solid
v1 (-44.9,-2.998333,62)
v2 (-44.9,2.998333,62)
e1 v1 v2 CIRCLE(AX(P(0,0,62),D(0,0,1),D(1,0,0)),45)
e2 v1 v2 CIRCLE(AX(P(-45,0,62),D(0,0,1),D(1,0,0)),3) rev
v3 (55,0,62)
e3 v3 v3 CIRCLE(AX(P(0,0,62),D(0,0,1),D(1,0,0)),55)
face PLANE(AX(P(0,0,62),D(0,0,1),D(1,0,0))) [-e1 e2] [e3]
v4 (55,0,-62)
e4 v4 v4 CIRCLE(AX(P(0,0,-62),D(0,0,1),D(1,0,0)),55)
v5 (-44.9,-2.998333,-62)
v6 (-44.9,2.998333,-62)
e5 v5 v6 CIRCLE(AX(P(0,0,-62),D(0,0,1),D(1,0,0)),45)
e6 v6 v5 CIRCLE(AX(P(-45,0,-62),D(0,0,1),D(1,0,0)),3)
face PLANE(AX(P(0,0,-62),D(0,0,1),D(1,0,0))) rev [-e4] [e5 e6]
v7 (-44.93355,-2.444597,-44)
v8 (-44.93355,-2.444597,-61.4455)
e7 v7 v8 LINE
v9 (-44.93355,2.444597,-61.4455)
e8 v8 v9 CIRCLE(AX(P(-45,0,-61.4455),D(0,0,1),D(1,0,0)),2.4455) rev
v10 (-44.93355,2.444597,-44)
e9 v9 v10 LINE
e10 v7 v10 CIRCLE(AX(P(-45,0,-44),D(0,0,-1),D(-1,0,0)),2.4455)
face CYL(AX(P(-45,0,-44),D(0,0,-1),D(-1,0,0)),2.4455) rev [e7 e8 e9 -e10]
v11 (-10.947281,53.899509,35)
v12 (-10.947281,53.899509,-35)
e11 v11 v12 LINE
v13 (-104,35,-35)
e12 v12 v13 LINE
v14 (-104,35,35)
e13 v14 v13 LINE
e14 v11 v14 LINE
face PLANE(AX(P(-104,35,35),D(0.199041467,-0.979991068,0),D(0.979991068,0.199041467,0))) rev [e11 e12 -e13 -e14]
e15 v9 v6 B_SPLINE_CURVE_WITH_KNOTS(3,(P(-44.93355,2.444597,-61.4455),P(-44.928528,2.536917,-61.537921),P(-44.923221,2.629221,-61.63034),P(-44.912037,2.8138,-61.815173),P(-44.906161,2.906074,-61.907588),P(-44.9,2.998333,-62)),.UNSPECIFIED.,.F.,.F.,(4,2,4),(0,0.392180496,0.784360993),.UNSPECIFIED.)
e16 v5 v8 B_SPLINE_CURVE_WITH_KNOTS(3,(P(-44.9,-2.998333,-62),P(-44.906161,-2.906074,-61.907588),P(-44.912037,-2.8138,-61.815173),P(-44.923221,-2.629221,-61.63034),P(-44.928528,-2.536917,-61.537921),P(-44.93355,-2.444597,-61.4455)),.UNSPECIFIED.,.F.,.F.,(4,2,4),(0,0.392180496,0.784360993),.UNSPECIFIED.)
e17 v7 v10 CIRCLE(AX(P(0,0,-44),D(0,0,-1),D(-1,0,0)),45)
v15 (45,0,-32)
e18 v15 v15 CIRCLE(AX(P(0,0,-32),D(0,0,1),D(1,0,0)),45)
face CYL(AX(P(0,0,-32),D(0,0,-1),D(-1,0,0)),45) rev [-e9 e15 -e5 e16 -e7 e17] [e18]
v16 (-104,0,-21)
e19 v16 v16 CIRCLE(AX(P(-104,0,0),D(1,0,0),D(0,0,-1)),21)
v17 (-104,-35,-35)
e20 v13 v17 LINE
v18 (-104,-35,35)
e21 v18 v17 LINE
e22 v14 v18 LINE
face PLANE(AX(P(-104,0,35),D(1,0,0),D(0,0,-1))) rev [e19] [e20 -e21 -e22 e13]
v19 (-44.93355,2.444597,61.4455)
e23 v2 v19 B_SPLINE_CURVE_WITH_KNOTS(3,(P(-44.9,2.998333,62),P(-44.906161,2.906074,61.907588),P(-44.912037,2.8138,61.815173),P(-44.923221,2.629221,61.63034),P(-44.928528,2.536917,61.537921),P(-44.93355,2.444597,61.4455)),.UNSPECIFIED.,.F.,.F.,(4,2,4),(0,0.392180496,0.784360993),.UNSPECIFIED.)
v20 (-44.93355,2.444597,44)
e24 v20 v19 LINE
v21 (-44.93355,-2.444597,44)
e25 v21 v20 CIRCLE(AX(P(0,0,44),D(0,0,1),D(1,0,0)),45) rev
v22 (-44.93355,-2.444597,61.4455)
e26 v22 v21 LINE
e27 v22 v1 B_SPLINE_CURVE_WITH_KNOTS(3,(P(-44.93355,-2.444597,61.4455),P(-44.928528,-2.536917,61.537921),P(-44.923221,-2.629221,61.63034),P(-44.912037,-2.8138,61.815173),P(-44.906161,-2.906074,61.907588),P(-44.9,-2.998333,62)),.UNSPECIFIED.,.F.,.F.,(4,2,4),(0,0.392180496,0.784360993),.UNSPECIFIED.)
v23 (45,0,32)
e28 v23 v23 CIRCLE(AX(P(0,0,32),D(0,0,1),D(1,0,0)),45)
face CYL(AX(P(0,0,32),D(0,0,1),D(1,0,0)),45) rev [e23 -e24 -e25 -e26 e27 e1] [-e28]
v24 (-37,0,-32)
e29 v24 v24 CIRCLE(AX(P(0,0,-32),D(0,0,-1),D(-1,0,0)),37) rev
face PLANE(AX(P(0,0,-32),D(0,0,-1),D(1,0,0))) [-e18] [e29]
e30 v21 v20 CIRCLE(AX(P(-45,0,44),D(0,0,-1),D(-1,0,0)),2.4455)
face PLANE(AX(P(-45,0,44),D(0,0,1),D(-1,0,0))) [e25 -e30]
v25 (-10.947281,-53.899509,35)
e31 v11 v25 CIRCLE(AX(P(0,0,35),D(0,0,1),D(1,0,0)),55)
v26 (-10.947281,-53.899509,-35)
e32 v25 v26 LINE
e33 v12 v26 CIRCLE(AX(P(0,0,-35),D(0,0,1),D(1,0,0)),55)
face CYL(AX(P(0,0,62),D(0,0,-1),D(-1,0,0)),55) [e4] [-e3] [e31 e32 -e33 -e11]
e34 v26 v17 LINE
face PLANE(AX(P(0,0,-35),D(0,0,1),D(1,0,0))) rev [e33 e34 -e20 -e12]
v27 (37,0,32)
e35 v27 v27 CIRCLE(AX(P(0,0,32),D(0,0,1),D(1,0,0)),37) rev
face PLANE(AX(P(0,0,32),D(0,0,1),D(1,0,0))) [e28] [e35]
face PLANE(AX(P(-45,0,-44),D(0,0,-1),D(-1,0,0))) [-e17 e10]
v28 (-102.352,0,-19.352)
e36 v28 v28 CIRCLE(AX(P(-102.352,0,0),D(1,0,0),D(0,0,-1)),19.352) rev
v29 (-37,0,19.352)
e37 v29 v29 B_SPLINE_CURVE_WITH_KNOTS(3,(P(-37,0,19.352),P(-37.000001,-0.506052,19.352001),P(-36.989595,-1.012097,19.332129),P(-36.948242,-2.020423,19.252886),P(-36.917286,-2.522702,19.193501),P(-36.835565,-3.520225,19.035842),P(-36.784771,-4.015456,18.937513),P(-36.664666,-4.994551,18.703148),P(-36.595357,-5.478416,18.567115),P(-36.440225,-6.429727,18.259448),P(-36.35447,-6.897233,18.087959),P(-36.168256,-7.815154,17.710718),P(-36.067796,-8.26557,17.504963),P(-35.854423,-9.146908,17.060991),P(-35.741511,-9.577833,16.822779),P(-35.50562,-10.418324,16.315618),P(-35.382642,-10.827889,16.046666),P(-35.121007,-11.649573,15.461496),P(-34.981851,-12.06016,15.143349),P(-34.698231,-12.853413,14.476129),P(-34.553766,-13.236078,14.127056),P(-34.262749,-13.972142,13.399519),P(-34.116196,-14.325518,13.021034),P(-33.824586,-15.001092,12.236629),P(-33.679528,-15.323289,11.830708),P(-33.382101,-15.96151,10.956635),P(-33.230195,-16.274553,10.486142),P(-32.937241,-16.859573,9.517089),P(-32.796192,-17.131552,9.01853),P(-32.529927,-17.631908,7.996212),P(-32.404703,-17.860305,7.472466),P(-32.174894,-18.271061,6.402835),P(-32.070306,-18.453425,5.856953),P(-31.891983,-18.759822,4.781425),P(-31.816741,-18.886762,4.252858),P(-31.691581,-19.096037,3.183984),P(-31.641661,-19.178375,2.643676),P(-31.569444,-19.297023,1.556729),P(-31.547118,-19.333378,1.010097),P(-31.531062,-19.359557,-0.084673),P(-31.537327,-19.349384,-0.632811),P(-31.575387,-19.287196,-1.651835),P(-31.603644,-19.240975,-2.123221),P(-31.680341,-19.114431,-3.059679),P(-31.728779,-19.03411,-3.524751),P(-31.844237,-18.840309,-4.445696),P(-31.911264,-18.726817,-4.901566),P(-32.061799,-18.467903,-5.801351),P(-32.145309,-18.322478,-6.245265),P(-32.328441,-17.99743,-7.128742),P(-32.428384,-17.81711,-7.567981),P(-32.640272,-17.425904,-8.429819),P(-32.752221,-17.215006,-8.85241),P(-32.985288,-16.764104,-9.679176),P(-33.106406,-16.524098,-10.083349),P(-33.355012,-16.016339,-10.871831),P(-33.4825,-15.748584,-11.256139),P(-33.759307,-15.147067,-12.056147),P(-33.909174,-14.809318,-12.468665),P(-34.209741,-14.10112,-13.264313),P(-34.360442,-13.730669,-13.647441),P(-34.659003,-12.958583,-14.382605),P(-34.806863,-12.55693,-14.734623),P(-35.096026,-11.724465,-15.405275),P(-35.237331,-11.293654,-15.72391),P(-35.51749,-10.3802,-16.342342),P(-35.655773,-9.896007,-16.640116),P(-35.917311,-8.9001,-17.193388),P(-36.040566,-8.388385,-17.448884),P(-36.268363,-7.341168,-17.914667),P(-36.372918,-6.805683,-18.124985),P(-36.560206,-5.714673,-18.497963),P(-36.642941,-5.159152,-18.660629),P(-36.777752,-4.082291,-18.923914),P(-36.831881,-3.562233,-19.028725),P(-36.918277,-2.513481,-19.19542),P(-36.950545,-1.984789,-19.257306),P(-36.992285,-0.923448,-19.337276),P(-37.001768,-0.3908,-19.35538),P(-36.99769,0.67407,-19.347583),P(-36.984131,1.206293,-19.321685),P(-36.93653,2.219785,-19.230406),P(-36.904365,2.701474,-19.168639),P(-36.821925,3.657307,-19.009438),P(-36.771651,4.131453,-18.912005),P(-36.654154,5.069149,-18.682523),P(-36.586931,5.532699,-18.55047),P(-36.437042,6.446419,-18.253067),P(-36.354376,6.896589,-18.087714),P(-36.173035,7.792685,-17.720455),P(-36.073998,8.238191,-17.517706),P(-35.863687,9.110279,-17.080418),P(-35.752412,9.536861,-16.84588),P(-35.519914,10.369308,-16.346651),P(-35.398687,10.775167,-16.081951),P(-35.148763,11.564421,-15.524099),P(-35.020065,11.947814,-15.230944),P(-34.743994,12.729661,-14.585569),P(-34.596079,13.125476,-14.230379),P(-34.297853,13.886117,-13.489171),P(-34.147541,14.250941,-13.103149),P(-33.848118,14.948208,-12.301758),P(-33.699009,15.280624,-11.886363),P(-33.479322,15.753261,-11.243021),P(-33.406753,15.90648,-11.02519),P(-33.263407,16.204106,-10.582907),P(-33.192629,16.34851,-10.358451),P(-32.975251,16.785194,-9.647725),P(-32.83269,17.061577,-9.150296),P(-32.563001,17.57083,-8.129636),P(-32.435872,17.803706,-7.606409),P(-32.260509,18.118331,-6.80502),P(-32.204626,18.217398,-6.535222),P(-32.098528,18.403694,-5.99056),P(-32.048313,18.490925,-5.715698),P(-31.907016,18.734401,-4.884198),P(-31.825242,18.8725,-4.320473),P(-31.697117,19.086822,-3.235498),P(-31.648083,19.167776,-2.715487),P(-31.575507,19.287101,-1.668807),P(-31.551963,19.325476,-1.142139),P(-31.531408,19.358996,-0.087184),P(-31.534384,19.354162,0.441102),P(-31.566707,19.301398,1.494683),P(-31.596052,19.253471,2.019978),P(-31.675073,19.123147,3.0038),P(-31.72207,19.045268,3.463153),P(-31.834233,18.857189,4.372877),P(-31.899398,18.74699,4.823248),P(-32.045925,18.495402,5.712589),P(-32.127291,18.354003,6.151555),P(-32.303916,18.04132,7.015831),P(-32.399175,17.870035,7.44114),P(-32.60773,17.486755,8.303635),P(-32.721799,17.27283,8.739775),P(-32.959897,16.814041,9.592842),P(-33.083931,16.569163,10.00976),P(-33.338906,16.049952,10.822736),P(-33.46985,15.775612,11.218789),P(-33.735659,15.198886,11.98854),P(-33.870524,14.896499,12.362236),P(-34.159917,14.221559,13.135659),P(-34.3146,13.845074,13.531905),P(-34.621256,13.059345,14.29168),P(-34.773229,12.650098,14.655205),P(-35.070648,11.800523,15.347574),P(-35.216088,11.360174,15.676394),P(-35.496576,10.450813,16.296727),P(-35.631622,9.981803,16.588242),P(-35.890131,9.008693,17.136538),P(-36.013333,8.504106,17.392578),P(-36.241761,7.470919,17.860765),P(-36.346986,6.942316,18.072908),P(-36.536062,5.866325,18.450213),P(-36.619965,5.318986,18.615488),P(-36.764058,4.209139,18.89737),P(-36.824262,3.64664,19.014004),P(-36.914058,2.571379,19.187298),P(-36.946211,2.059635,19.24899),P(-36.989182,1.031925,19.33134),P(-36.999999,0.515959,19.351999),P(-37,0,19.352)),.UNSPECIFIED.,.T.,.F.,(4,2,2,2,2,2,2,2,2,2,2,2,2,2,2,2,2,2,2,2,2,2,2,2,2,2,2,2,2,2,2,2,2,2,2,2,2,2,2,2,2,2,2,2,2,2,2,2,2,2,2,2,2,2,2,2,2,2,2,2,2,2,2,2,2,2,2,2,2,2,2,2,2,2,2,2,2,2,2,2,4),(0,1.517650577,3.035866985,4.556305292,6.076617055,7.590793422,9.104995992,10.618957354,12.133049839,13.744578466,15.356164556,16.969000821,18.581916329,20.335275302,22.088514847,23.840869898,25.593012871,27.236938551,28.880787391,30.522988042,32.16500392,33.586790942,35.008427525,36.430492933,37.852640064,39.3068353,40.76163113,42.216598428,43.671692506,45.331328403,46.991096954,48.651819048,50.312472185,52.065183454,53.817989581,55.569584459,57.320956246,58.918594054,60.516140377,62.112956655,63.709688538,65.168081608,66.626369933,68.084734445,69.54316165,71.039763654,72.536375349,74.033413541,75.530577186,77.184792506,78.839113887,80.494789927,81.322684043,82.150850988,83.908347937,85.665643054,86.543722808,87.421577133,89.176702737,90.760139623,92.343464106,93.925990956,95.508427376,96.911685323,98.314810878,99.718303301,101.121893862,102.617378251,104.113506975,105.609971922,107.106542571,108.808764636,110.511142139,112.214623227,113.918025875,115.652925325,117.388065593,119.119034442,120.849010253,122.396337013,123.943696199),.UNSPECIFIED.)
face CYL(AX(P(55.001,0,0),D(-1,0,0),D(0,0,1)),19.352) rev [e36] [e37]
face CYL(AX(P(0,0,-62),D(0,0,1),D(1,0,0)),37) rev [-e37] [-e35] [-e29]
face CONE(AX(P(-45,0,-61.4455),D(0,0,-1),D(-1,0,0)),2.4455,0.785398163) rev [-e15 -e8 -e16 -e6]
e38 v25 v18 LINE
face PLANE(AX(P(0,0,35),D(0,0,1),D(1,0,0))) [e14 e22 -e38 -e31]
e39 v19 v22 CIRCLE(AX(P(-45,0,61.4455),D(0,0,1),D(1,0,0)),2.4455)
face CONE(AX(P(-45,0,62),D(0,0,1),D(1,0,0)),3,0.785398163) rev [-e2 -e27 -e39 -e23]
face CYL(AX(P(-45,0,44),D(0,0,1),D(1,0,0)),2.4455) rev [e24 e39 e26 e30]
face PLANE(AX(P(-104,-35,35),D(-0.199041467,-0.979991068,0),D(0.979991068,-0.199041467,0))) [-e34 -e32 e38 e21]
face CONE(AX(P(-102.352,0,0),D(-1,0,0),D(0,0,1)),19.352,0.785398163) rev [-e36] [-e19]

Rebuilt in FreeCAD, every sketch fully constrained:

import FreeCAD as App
import Part
import Sketcher
Q = App.Units.Quantity


def edges_at(feature, points):
    """Names of the edges that pass closest to the given points."""
    edges = feature.Shape.Edges
    near = lambda p: min(range(len(edges)), key=lambda i: edges[i].distToShape(Part.Vertex(*p))[0])
    return sorted({f"Edge{near(p) + 1}" for p in points})


def add_polygon(sketch, points):
    """Adds a closed chain of lines whose ends are joined by coincident constraints."""
    first, n = sketch.GeometryCount, len(points)
    for a, b in zip(points, points[1:] + points[:1]):
        sketch.addGeometry(Part.LineSegment(App.Vector(*a, 0), App.Vector(*b, 0)), False)
    for i in range(n):
        sketch.addConstraint(Sketcher.Constraint("Coincident", first + i, 2, first + (i + 1) % n, 1))

doc = App.newDocument("Part")
body = doc.addObject("PartDesign::Body", "Body")

# Sketch on XY plane
sketch1 = doc.addObject("Sketcher::SketchObject", "Sketch")
body.addObject(sketch1)
sketch1.AttachmentSupport = (doc.XY_Plane, [""])
sketch1.MapMode = "FlatFace"
sketch1.addGeometry(Part.Circle(App.Vector(0, 0, 0), App.Vector(0, 0, 1), 55), False)
sketch1.addConstraint(Sketcher.Constraint("Coincident", 0, 3, -1, 1))
sketch1.addConstraint(Sketcher.Constraint("Diameter", 0, Q("110 mm")))
pad1 = doc.addObject("PartDesign::Pad", "Pad")
body.addObject(pad1)
pad1.Profile = sketch1
pad1.Length = 124
pad1.Midplane = True

# Sketch on XY plane
sketch2 = doc.addObject("Sketcher::SketchObject", "Sketch001")
body.addObject(sketch2)
sketch2.AttachmentSupport = (doc.XY_Plane, [""])
sketch2.MapMode = "FlatFace"
add_polygon(sketch2, [(-104, 35), (-104, 0), (-10.947281, 0), (-10.947281, 53.899509)])  # lines 0-3
sketch2.addConstraint(Sketcher.Constraint("Vertical", 0))
sketch2.addConstraint(Sketcher.Constraint("Horizontal", 1))
sketch2.addConstraint(Sketcher.Constraint("Vertical", 2))
sketch2.addConstraint(Sketcher.Constraint("PointOnObject", 0, 2, -1))
sketch2.addConstraint(Sketcher.Constraint("DistanceY", 0, 2, 0, 1, Q("35 mm")))
sketch2.addConstraint(Sketcher.Constraint("DistanceX", 0, 2, -1, 1, Q("104 mm")))
sketch2.addConstraint(Sketcher.Constraint("DistanceX", 1, 1, 1, 2, Q("93.052719 mm")))
sketch2.addConstraint(Sketcher.Constraint("DistanceY", 2, 1, 2, 2, Q("53.899509 mm")))
pad2 = doc.addObject("PartDesign::Pad", "Pad001")
body.addObject(pad2)
pad2.Profile = sketch2
pad2.Length = 70
pad2.Midplane = True
doc.recompute()

mirrored = doc.addObject("PartDesign::Mirrored", "Mirrored")
body.addObject(mirrored)
mirrored.Originals = [pad2]
mirrored.MirrorPlane = (doc.XZ_Plane, [""])
body.Tip = mirrored

# Sketch on XY plane
sketch3 = doc.addObject("Sketcher::SketchObject", "Sketch002")
body.addObject(sketch3)
sketch3.AttachmentSupport = (doc.XY_Plane, [""])
sketch3.MapMode = "FlatFace"
sketch3.addGeometry(Part.Circle(App.Vector(0, 0, 0), App.Vector(0, 0, 1), 37), False)
sketch3.addConstraint(Sketcher.Constraint("Coincident", 0, 3, -1, 1))
sketch3.addConstraint(Sketcher.Constraint("Diameter", 0, Q("74 mm")))
pocket1 = doc.addObject("PartDesign::Pocket", "Pocket")
body.addObject(pocket1)
pocket1.Profile = sketch3
pocket1.Type = "ThroughAll"
pocket1.Midplane = True

# Sketch on XY plane
sketch4 = doc.addObject("Sketcher::SketchObject", "Sketch003")
body.addObject(sketch4)
sketch4.AttachmentSupport = (doc.XY_Plane, [""])
sketch4.MapMode = "FlatFace"
sketch4.AttachmentOffset = App.Placement(App.Vector(0, 0, 62), App.Rotation())
sketch4.addGeometry(Part.Circle(App.Vector(0, 0, 0), App.Vector(0, 0, 1), 45), False)
sketch4.addConstraint(Sketcher.Constraint("Coincident", 0, 3, -1, 1))
sketch4.addConstraint(Sketcher.Constraint("Diameter", 0, Q("90 mm")))
pocket2 = doc.addObject("PartDesign::Pocket", "Pocket001")
body.addObject(pocket2)
pocket2.Profile = sketch4
pocket2.Length = 30
doc.recompute()

mirrored2 = doc.addObject("PartDesign::Mirrored", "Mirrored001")
body.addObject(mirrored2)
mirrored2.Originals = [pocket2]
mirrored2.MirrorPlane = (doc.XY_Plane, [""])
body.Tip = mirrored2

# Sketch on YZ plane
sketch5 = doc.addObject("Sketcher::SketchObject", "Sketch004")
body.addObject(sketch5)
sketch5.AttachmentSupport = (doc.YZ_Plane, [""])
sketch5.MapMode = "FlatFace"
sketch5.AttachmentOffset = App.Placement(App.Vector(0, 0, -104), App.Rotation())
sketch5.addGeometry(Part.Circle(App.Vector(0, 0, 0), App.Vector(0, 0, 1), 19.352), False)
sketch5.addConstraint(Sketcher.Constraint("Coincident", 0, 3, -1, 1))
sketch5.addConstraint(Sketcher.Constraint("Diameter", 0, Q("38.704 mm")))
pocket3 = doc.addObject("PartDesign::Pocket", "Pocket002")
body.addObject(pocket3)
pocket3.Profile = sketch5
pocket3.Type = "UpToFirst"
pocket3.Reversed = True
doc.recompute()

chamfer = doc.addObject("PartDesign::Chamfer", "Chamfer")
body.addObject(chamfer)
chamfer.Base = (pocket3, edges_at(pocket3, [(-104, 0, -19.352)]))
chamfer.Size = 1.648

# Sketch on XY plane
sketch6 = doc.addObject("Sketcher::SketchObject", "Sketch005")
body.addObject(sketch6)
sketch6.AttachmentSupport = (doc.XY_Plane, [""])
sketch6.MapMode = "FlatFace"
sketch6.AttachmentOffset = App.Placement(App.Vector(0, 0, -62), App.Rotation())
sketch6.addGeometry(Part.Circle(App.Vector(-45, 0, 0), App.Vector(0, 0, 1), 2.4455), False)
sketch6.addConstraint(Sketcher.Constraint("PointOnObject", 0, 3, -1))
sketch6.addConstraint(Sketcher.Constraint("Diameter", 0, Q("4.891 mm")))
sketch6.addConstraint(Sketcher.Constraint("DistanceX", 0, 3, -1, 1, Q("45 mm")))
pocket4 = doc.addObject("PartDesign::Pocket", "Pocket003")
body.addObject(pocket4)
pocket4.Profile = sketch6
pocket4.Length = 18
pocket4.Reversed = True
doc.recompute()

mirrored3 = doc.addObject("PartDesign::Mirrored", "Mirrored002")
body.addObject(mirrored3)
mirrored3.Originals = [pocket4]
mirrored3.MirrorPlane = (doc.XY_Plane, [""])
body.Tip = mirrored3
doc.recompute()

chamfer2 = doc.addObject("PartDesign::Chamfer", "Chamfer001")
body.addObject(chamfer2)
chamfer2.Base = (mirrored3, edges_at(mirrored3, [(-47.446, 0, -62), (-47.446, 0, 62)]))
chamfer2.Size = 0.5545

doc.recompute()
